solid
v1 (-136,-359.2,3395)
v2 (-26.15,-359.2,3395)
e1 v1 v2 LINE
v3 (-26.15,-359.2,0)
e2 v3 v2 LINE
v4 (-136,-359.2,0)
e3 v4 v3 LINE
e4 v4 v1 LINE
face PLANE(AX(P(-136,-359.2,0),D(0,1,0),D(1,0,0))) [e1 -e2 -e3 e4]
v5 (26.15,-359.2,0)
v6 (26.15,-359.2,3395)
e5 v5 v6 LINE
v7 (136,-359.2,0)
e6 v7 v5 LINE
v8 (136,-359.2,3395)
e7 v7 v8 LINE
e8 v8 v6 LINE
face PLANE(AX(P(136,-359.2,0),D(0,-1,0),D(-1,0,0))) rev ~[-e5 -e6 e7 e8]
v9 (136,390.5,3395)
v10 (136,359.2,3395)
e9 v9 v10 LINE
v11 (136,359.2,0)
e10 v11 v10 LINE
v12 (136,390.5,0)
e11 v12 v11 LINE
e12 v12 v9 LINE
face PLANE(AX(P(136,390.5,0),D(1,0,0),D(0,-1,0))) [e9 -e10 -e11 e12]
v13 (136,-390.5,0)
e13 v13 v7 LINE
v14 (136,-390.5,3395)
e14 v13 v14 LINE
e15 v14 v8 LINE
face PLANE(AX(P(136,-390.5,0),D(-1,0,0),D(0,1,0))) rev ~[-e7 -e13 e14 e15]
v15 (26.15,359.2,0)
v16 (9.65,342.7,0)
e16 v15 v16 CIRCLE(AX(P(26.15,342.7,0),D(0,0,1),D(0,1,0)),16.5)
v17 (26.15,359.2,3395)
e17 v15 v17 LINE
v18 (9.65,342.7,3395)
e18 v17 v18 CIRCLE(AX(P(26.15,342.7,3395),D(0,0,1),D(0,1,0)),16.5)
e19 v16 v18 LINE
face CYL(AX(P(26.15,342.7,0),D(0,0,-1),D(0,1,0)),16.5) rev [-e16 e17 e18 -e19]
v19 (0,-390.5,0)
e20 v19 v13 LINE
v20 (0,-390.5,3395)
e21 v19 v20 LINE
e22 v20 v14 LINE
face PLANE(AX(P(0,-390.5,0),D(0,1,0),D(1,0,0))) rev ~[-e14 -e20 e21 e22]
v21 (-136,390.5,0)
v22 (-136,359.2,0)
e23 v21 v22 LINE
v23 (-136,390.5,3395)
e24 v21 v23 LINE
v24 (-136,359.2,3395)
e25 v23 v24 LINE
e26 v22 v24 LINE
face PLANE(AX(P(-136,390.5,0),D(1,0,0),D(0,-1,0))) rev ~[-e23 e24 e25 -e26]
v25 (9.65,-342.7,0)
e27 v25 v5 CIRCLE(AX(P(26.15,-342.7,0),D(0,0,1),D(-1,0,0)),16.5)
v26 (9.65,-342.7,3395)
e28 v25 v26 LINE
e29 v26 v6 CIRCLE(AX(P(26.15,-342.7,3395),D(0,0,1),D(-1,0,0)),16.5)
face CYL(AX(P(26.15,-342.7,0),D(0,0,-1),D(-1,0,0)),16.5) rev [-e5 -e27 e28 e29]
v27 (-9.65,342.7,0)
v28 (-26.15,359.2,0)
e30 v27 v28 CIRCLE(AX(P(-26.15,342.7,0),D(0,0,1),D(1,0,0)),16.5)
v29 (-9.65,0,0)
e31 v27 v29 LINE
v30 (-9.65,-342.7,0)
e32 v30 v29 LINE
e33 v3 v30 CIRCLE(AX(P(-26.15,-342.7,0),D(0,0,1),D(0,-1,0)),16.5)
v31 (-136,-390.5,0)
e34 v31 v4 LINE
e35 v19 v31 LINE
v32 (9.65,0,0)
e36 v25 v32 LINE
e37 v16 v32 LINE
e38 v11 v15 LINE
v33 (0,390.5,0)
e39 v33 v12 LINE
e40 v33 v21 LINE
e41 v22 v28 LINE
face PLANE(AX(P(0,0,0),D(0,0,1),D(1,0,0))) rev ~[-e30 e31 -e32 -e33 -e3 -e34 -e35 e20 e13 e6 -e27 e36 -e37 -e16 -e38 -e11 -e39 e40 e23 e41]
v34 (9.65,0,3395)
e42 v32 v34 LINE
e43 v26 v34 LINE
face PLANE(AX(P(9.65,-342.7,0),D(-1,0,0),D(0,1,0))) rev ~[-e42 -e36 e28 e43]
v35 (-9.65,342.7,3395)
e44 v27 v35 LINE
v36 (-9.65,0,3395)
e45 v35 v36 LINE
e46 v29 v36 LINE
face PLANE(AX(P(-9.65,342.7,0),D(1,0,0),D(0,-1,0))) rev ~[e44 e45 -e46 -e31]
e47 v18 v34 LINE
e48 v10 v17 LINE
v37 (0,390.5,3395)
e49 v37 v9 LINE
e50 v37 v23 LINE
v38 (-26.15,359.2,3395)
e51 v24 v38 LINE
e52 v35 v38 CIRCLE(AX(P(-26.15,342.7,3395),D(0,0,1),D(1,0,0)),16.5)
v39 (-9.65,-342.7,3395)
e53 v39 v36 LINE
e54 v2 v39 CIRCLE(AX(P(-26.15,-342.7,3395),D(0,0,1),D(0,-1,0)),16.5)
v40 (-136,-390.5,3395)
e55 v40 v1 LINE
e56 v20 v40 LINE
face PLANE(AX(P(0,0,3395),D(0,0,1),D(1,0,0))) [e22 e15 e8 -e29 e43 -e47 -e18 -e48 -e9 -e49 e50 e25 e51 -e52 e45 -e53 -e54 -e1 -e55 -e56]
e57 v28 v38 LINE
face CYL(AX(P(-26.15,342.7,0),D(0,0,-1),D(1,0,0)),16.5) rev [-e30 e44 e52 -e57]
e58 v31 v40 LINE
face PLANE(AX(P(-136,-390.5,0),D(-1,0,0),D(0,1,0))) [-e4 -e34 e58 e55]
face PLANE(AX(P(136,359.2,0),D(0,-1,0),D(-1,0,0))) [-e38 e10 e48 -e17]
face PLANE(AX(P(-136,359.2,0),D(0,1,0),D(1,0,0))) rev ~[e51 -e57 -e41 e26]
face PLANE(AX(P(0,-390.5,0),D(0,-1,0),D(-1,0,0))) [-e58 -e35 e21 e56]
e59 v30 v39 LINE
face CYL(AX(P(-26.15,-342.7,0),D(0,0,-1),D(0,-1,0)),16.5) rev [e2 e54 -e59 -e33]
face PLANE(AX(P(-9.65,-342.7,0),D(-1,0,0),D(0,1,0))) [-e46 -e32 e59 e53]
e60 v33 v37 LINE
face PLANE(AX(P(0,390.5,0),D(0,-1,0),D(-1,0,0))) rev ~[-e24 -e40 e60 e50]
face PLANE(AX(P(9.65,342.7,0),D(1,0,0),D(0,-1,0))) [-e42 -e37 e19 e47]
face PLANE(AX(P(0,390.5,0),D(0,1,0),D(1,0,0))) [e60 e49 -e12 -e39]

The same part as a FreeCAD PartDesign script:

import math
import FreeCAD as App
import Part
import Sketcher
from FreeCAD import Vector
Q = App.Units.Quantity

doc = App.newDocument("Part")
params = doc.addObject("Spreadsheet::Sheet", "Params")
for row, (alias, value) in enumerate([
    ("sketch1_radius", "16.5 mm"),
    ("sketch1_height", "31.3 mm"),
    ("pad1_length", "3395 mm"),
], start=1):
    params.set(f"A{row}", alias)
    params.set(f"B{row}", "=" + value)
    params.setAlias(f"B{row}", alias)

body = doc.addObject("PartDesign::Body", "Body")

sketch1 = doc.addObject("Sketcher::SketchObject", "Sketch")
body.addObject(sketch1)
sketch1.AttachmentSupport = (doc.XY_Plane, [""])
sketch1.MapMode = "FlatFace"
sketch1.addGeometry(Part.LineSegment(Vector(-136, -359, 0), Vector(-136, -390, 0)), False)
sketch1.addGeometry(Part.LineSegment(Vector(-136, -390, 0), Vector(136, -390, 0)), False)
sketch1.addGeometry(Part.LineSegment(Vector(136, -390, 0), Vector(136, -359, 0)), False)
sketch1.addGeometry(Part.LineSegment(Vector(136, -359, 0), Vector(26, -359, 0)), False)
sketch1.addGeometry(Part.ArcOfCircle(Part.Circle(Vector(26, -343, 0), Vector(0, 0, 1), 16), math.radians(180), math.radians(270)), False)
sketch1.addGeometry(Part.LineSegment(Vector(10, -343, 0), Vector(10, 343, 0)), False)
sketch1.addGeometry(Part.ArcOfCircle(Part.Circle(Vector(26, 343, 0), Vector(0, 0, 1), 16), math.radians(90), math.radians(180)), False)
sketch1.addGeometry(Part.LineSegment(Vector(26, 359, 0), Vector(136, 359, 0)), False)
sketch1.addGeometry(Part.LineSegment(Vector(136, 359, 0), Vector(136, 390, 0)), False)
sketch1.addGeometry(Part.LineSegment(Vector(136, 390, 0), Vector(-136, 390, 0)), False)
sketch1.addGeometry(Part.LineSegment(Vector(-136, 390, 0), Vector(-136, 359, 0)), False)
sketch1.addGeometry(Part.LineSegment(Vector(-136, 359, 0), Vector(-26, 359, 0)), False)
sketch1.addGeometry(Part.ArcOfCircle(Part.Circle(Vector(-26, 343, 0), Vector(0, 0, 1), 16), math.radians(0), math.radians(90)), False)
sketch1.addGeometry(Part.LineSegment(Vector(-10, 343, 0), Vector(-10, -343, 0)), False)
sketch1.addGeometry(Part.ArcOfCircle(Part.Circle(Vector(-26, -343, 0), Vector(0, 0, 1), 16), math.radians(-90), math.radians(0)), False)
sketch1.addGeometry(Part.LineSegment(Vector(-26, -359, 0), Vector(-136, -359, 0)), False)
sketch1.addConstraint(Sketcher.Constraint("Coincident", 0, 2, 1, 1))
sketch1.addConstraint(Sketcher.Constraint("Coincident", 1, 2, 2, 1))
sketch1.addConstraint(Sketcher.Constraint("Coincident", 2, 2, 3, 1))
sketch1.addConstraint(Sketcher.Constraint("Tangent", 3, 2, 4, 2))
sketch1.addConstraint(Sketcher.Constraint("Tangent", 4, 1, 5, 1))
sketch1.addConstraint(Sketcher.Constraint("Tangent", 5, 2, 6, 2))
sketch1.addConstraint(Sketcher.Constraint("Tangent", 6, 1, 7, 1))
sketch1.addConstraint(Sketcher.Constraint("Coincident", 7, 2, 8, 1))
sketch1.addConstraint(Sketcher.Constraint("Coincident", 8, 2, 9, 1))
sketch1.addConstraint(Sketcher.Constraint("Coincident", 9, 2, 10, 1))
sketch1.addConstraint(Sketcher.Constraint("Coincident", 10, 2, 11, 1))
sketch1.addConstraint(Sketcher.Constraint("Tangent", 11, 2, 12, 2))
sketch1.addConstraint(Sketcher.Constraint("Tangent", 12, 1, 13, 1))
sketch1.addConstraint(Sketcher.Constraint("Tangent", 13, 2, 14, 2))
sketch1.addConstraint(Sketcher.Constraint("Tangent", 14, 1, 15, 1))
sketch1.addConstraint(Sketcher.Constraint("Coincident", 15, 2, 0, 1))
sketch1.addConstraint(Sketcher.Constraint("Vertical", 0))
sketch1.addConstraint(Sketcher.Constraint("Horizontal", 1))
sketch1.addConstraint(Sketcher.Constraint("Vertical", 2))
sketch1.addConstraint(Sketcher.Constraint("Horizontal", 3))
sketch1.addConstraint(Sketcher.Constraint("Vertical", 5))
sketch1.addConstraint(Sketcher.Constraint("Horizontal", 7))
sketch1.addConstraint(Sketcher.Constraint("Vertical", 8))
sketch1.addConstraint(Sketcher.Constraint("Horizontal", 9))
sketch1.addConstraint(Sketcher.Constraint("Vertical", 10))
sketch1.addConstraint(Sketcher.Constraint("Horizontal", 11))
sketch1.addConstraint(Sketcher.Constraint("Vertical", 13))
sketch1.addConstraint(Sketcher.Constraint("Horizontal", 15))
sketch1.addConstraint(Sketcher.Constraint("Equal", 4, 6))
sketch1.addConstraint(Sketcher.Constraint("Equal", 6, 12))
sketch1.addConstraint(Sketcher.Constraint("Equal", 12, 14))
sketch1.addConstraint(Sketcher.Constraint("Symmetric", 4, 3, 12, 3, -1, 1))
sketch1.addConstraint(Sketcher.Constraint("Symmetric", 0, 2, 8, 2, -1, 1))
sketch1.addConstraint(Sketcher.Constraint("Symmetric", 7, 2, 10, 2, -2))
sketch1.addConstraint(Sketcher.Constraint("Symmetric", 2, 2, 15, 2, -2))
sketch1.addConstraint(Sketcher.Constraint("Radius", 4, Q("16.5 mm")))
sketch1.addConstraint(Sketcher.Constraint("DistanceY", 0, 2, 0, 1, Q("31.3 mm")))
sketch1.addConstraint(Sketcher.Constraint("DistanceX", 0, 2, -1, 1, Q("136 mm")))
sketch1.addConstraint(Sketcher.Constraint("DistanceY", 0, 2, -1, 1, Q("390.5 mm")))
sketch1.addConstraint(Sketcher.Constraint("DistanceX", -1, 1, 4, 1, Q("9.65 mm")))
sketch1.setExpression("Constraints[35]", "Params.sketch1_radius")
sketch1.setExpression("Constraints[36]", "Params.sketch1_height")
pad1 = doc.addObject("PartDesign::Pad", "Pad")
body.addObject(pad1)
pad1.Profile = sketch1
pad1.setExpression("Length", "Params.pad1_length")

doc.recompute()
